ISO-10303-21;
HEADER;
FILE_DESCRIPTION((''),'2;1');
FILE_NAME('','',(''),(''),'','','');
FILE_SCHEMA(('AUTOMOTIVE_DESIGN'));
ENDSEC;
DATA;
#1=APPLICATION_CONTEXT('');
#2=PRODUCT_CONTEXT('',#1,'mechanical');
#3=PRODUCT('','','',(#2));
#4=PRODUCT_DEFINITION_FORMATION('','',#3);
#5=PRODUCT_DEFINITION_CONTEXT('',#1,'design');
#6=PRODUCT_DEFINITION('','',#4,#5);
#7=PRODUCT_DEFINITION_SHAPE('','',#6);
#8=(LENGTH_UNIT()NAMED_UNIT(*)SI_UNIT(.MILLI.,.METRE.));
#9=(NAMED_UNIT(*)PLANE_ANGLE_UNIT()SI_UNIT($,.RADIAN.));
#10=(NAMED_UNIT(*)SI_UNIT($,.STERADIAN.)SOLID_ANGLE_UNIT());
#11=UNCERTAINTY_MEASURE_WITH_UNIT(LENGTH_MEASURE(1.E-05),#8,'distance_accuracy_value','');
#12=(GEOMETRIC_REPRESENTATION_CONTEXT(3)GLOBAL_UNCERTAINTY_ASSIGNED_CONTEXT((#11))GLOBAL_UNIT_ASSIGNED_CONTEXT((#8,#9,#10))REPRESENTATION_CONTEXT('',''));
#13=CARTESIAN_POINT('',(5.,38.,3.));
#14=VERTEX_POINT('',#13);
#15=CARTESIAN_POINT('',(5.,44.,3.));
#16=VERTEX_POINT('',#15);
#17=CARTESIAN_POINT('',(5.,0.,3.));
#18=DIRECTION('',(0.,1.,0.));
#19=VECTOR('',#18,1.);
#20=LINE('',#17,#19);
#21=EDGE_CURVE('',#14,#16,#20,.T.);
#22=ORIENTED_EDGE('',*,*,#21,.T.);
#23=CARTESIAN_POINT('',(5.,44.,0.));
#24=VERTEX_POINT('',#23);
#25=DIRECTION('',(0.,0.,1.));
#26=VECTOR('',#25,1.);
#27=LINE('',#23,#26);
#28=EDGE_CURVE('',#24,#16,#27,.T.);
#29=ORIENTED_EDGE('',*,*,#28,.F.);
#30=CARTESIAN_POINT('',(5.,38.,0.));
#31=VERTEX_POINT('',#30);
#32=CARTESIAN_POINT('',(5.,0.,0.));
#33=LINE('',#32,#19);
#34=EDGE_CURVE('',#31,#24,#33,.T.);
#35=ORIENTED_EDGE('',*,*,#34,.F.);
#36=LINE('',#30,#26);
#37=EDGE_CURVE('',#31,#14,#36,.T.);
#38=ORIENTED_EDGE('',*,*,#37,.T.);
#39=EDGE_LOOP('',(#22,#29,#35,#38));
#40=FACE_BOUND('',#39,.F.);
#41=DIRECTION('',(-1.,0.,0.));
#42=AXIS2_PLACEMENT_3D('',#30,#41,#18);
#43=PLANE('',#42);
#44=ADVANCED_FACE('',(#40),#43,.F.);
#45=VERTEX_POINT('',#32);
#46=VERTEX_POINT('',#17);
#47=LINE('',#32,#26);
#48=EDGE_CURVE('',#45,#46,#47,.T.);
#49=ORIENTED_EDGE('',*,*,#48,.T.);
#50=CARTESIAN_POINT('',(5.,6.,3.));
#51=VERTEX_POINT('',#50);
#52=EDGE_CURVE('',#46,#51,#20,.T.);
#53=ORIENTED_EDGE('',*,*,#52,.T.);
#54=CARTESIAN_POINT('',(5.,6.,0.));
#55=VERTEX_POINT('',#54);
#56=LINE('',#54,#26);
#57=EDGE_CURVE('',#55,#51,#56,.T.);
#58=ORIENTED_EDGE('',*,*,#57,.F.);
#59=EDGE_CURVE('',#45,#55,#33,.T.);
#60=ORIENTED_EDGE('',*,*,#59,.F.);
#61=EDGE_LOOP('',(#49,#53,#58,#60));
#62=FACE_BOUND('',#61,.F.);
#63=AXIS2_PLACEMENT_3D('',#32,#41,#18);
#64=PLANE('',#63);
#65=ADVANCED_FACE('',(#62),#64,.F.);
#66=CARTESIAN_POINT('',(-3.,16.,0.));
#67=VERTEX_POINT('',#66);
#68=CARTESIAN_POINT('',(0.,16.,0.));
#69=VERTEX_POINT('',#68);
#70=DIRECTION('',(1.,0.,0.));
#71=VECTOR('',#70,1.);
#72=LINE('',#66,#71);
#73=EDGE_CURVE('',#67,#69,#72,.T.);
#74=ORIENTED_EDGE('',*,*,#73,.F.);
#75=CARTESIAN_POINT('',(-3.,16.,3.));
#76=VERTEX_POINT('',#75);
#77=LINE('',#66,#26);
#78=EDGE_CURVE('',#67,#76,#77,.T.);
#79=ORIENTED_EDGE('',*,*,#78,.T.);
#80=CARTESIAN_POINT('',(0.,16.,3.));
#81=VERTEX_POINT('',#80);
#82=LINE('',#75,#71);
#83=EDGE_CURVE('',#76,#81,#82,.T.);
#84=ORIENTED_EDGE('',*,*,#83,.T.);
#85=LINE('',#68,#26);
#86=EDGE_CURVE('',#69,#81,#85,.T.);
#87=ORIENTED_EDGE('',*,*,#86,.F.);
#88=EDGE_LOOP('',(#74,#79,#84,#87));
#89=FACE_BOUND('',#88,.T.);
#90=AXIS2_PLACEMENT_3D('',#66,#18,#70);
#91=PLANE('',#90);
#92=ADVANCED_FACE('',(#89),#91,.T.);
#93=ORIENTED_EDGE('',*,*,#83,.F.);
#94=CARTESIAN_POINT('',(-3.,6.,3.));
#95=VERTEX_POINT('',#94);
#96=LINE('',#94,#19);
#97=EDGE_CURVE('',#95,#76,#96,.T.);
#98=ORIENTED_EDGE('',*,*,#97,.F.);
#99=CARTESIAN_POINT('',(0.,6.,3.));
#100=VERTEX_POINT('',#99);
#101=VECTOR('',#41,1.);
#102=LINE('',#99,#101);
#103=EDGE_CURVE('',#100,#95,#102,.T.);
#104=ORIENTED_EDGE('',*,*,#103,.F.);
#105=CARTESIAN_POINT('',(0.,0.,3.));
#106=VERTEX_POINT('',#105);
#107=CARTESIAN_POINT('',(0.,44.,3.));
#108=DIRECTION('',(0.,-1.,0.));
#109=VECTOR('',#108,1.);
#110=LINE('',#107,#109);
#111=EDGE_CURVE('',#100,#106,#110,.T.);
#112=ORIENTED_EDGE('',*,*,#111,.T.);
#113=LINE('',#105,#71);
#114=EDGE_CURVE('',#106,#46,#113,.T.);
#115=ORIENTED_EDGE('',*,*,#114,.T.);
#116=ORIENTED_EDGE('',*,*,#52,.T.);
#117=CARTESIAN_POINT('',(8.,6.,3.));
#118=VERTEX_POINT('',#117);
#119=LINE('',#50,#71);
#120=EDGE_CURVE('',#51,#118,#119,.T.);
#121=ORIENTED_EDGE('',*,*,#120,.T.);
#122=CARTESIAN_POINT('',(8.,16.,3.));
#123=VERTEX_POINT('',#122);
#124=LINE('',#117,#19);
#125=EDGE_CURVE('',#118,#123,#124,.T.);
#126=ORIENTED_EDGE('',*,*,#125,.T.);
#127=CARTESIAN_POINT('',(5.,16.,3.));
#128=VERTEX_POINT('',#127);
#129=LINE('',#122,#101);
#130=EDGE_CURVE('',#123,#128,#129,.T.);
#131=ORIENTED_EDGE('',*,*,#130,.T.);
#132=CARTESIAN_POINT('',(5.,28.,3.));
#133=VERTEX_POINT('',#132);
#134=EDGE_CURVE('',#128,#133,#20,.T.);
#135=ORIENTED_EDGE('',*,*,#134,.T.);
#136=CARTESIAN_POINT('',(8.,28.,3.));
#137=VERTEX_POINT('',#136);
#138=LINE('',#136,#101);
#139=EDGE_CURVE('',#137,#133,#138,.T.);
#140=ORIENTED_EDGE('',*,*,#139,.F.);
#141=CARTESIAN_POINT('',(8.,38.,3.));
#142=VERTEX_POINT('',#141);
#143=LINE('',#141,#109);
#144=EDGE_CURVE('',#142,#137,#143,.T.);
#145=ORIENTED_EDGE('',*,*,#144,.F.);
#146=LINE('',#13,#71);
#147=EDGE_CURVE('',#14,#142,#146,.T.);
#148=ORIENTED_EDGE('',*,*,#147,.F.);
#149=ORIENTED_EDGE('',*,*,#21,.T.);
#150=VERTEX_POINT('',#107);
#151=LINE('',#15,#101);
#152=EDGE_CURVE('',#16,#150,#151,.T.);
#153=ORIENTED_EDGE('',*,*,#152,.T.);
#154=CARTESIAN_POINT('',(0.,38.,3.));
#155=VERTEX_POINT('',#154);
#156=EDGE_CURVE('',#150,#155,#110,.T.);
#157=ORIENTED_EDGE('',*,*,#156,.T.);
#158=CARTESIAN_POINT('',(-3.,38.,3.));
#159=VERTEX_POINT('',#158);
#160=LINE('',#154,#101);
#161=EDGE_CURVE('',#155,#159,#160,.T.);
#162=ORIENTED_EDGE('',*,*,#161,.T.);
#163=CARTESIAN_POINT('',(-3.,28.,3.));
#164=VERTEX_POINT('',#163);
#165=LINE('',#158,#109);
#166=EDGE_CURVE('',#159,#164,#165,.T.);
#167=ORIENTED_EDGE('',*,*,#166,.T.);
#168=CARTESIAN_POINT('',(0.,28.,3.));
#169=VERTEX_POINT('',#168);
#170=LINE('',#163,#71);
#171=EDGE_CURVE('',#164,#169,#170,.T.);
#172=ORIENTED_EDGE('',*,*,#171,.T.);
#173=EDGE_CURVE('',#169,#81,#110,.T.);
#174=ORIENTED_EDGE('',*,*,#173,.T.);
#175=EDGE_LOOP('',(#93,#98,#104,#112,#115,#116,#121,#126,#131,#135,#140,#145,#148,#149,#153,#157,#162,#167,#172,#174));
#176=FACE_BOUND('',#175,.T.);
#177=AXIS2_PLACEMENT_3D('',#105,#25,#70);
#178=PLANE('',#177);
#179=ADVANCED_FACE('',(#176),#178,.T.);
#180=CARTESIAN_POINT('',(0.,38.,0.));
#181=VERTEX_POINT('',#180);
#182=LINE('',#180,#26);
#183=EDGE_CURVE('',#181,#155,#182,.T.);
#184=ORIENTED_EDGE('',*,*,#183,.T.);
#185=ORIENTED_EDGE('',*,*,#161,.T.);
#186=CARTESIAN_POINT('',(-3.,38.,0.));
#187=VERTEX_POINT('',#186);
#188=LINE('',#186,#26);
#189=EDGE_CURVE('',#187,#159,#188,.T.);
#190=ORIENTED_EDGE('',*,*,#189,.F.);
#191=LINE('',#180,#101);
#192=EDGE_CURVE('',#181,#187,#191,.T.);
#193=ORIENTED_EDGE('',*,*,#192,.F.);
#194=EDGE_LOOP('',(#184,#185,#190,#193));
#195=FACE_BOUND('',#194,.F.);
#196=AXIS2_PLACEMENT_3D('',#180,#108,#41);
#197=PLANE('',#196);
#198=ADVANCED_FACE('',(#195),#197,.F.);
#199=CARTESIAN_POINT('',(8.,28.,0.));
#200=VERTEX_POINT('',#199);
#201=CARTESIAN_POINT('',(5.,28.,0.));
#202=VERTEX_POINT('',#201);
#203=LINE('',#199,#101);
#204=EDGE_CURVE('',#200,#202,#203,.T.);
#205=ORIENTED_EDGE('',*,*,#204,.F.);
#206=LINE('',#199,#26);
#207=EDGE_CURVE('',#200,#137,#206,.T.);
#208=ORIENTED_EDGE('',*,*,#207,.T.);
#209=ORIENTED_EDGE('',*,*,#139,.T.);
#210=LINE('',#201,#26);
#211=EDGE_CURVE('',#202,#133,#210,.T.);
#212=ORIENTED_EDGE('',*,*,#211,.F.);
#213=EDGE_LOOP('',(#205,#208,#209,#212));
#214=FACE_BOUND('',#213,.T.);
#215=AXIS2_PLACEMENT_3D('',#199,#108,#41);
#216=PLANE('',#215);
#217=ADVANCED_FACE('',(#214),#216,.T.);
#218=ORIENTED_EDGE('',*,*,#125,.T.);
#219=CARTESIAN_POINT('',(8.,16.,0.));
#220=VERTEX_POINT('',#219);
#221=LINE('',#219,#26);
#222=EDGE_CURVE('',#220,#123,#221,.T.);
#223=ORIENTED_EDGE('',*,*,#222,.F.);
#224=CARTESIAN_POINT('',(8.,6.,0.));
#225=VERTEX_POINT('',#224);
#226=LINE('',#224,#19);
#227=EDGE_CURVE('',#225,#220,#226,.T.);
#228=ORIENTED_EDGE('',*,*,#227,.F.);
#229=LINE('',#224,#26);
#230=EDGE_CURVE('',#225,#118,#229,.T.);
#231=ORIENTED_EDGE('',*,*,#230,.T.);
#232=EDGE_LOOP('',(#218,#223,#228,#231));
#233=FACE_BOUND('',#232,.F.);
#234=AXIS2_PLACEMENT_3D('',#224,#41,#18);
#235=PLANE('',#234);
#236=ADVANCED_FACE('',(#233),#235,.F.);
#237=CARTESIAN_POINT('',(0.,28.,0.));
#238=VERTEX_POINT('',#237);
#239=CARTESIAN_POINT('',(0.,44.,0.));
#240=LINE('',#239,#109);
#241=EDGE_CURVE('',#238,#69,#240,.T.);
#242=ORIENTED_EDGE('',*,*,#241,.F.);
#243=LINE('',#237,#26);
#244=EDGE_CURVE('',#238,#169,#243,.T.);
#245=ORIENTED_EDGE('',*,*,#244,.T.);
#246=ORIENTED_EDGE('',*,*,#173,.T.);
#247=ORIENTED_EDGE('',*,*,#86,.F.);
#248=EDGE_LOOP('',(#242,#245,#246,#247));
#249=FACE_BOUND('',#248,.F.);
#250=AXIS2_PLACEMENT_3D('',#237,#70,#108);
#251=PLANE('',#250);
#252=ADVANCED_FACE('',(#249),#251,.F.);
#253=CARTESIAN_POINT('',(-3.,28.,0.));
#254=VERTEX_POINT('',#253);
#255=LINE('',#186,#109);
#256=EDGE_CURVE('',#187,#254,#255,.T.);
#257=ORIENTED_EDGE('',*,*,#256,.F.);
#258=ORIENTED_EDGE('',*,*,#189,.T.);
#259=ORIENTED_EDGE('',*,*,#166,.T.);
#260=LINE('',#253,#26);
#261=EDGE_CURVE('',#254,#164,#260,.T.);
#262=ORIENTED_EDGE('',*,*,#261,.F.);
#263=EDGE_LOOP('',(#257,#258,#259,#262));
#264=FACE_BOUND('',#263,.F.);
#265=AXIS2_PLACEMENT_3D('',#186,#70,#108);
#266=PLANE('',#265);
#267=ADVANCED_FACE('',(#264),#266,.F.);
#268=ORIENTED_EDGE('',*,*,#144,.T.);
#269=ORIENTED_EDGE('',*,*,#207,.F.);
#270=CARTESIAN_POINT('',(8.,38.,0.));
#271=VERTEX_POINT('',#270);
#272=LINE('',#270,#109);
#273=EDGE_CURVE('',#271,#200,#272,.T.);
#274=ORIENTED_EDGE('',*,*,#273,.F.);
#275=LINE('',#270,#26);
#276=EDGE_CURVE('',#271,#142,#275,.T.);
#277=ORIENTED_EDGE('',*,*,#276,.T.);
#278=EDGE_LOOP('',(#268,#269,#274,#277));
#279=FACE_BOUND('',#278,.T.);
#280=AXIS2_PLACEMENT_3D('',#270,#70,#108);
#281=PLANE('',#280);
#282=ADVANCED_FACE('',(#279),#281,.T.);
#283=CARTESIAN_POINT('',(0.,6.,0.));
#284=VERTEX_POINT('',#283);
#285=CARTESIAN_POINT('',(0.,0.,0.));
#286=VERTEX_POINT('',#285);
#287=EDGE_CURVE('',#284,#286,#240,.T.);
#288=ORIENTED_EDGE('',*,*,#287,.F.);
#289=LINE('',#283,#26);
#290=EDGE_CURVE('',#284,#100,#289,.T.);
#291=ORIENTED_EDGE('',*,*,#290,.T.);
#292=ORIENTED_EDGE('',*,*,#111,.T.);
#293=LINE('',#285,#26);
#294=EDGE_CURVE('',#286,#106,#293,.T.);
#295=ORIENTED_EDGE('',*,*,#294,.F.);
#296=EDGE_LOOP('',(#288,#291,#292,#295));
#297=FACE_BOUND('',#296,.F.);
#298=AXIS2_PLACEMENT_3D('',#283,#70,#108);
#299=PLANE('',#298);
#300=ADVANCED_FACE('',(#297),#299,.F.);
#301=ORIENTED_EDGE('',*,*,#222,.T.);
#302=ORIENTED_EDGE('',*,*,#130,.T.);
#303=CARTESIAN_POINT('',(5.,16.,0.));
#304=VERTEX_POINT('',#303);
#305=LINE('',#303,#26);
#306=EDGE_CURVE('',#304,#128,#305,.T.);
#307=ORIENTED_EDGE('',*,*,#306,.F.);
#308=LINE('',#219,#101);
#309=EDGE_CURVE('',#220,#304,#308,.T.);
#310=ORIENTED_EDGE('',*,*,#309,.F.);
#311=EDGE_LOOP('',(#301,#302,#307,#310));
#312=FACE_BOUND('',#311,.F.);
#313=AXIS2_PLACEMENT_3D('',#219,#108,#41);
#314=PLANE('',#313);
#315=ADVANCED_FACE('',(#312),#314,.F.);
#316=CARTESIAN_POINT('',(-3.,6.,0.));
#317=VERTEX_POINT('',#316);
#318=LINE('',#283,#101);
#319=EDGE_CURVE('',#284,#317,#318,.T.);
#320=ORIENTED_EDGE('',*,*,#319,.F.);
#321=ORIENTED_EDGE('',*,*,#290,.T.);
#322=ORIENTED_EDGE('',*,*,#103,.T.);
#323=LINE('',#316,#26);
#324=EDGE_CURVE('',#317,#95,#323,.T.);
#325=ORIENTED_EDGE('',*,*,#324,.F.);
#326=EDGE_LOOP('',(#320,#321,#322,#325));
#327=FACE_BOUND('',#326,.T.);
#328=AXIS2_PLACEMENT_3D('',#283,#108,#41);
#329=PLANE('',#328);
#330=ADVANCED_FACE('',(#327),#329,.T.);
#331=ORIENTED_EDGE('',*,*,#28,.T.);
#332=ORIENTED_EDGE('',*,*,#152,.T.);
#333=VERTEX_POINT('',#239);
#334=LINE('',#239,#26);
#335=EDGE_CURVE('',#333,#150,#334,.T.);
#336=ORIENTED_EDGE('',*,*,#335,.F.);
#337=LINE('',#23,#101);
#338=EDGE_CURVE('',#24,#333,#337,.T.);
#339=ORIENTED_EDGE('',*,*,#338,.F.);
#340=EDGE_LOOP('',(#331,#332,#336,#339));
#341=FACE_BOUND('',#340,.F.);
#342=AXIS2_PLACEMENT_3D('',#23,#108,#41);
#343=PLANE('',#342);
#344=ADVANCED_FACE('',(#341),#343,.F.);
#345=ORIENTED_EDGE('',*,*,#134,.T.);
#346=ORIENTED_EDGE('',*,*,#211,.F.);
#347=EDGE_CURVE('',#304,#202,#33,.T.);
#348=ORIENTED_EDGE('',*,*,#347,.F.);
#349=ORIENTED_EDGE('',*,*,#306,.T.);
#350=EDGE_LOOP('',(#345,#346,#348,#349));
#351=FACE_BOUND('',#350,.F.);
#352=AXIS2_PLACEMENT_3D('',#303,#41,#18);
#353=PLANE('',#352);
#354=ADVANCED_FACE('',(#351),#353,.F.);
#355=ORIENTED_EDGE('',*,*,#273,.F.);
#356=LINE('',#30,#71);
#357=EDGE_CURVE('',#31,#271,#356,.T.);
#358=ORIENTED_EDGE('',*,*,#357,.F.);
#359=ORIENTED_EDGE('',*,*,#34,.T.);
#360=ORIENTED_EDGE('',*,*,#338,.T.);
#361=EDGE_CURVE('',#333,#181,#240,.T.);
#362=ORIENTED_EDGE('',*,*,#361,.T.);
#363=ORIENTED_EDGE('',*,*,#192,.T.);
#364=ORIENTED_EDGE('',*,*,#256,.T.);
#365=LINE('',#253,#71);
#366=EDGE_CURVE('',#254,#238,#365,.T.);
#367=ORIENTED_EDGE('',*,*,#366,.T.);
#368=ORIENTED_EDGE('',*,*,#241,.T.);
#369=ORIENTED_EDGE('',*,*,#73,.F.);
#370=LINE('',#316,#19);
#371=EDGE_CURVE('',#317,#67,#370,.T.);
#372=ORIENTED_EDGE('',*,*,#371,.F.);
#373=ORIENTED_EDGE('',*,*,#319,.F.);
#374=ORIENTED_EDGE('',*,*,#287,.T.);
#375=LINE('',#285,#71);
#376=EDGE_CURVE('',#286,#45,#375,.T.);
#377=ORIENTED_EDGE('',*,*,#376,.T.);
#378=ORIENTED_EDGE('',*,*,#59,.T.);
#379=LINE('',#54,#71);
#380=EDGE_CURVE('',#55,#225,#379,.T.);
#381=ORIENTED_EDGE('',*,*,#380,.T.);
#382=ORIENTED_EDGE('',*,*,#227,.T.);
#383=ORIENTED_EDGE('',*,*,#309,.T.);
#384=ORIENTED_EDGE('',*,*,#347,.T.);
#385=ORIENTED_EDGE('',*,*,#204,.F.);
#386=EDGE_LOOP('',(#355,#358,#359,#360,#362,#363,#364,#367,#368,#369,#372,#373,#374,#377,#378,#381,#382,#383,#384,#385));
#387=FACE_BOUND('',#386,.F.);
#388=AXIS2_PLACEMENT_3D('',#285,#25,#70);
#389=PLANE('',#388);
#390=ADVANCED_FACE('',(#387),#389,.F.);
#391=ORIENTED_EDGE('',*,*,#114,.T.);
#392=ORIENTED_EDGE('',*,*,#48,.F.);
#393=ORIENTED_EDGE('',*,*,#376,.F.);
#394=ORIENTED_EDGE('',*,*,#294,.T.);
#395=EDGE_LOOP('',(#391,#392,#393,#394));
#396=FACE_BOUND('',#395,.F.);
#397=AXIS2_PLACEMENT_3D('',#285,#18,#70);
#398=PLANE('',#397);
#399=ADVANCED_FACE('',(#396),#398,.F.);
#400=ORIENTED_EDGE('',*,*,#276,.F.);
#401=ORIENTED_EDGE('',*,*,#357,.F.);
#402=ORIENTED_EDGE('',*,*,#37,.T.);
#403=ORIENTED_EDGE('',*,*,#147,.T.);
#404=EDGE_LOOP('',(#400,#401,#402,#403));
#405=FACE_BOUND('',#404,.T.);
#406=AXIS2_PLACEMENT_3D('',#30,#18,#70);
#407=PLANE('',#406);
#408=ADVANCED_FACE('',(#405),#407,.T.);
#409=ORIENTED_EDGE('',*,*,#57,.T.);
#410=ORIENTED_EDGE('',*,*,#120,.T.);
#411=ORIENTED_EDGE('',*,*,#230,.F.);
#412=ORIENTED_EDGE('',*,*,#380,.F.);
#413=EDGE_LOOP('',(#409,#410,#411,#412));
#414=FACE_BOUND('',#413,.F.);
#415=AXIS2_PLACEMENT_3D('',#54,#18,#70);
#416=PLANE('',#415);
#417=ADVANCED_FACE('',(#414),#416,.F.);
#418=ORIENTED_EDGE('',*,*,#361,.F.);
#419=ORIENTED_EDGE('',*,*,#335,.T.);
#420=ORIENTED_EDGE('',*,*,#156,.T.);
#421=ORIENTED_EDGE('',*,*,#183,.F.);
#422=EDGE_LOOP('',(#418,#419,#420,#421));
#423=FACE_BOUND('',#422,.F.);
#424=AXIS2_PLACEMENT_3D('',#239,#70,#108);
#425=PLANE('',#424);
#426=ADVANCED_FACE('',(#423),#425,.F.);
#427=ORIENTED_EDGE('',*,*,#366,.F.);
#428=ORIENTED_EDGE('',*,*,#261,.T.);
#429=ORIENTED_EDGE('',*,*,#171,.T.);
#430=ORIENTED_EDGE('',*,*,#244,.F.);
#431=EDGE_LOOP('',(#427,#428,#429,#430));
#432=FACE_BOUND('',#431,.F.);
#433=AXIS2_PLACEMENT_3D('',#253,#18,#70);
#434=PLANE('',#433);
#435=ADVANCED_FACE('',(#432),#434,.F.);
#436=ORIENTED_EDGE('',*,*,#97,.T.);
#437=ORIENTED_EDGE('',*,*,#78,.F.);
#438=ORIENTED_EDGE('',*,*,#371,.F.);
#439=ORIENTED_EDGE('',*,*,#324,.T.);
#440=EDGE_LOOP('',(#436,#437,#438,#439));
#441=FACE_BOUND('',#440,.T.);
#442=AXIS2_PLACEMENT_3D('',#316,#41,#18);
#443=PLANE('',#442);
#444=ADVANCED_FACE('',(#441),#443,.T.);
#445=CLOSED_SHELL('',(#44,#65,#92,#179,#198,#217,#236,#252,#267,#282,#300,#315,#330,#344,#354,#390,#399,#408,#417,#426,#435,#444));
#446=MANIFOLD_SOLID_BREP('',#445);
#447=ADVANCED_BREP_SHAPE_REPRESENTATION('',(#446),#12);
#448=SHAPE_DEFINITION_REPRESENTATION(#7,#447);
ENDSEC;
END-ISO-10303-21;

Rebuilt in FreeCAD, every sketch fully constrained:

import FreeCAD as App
import Part
import Sketcher


def add_polygon(sketch, points):
    """Adds a closed chain of lines whose ends are joined by coincident constraints."""
    first, n = sketch.GeometryCount, len(points)
    for a, b in zip(points, points[1:] + points[:1]):
        sketch.addGeometry(Part.LineSegment(App.Vector(*a, 0), App.Vector(*b, 0)), False)
    for i in range(n):
        sketch.addConstraint(Sketcher.Constraint("Coincident", first + i, 2, first + (i + 1) % n, 1))

doc = App.newDocument("Part")
params = doc.addObject("Spreadsheet::Sheet", "Params")
for row, (alias, value) in enumerate([
    ("sketch1_width", "5 mm"),
    ("sketch1_width2", "3 mm"),
    ("sketch1_height", "6 mm"),
    ("sketch1_height2", "10 mm"),
    ("pad1_length", "3 mm"),
], start=1):
    params.set(f"A{row}", alias)
    params.set(f"B{row}", "=" + value)
    params.setAlias(f"B{row}", alias)

body = doc.addObject("PartDesign::Body", "Body")

sketch1 = doc.addObject("Sketcher::SketchObject", "Sketch")
body.addObject(sketch1)
sketch1.AttachmentSupport = (doc.XY_Plane, [""])
sketch1.MapMode = "FlatFace"
add_polygon(sketch1, [(0, 6), (0, 0), (5, 0), (5, 6), (8, 6), (8, 16), (5, 16), (5, 28), (8, 28), (8, 38), (5, 38), (5, 44), (0, 44), (0, 38), (-3, 38), (-3, 28), (0, 28), (0, 16), (-3, 16), (-3, 6)])
sketch1.addConstraint(Sketcher.Constraint("Vertical", 0))
sketch1.addConstraint(Sketcher.Constraint("Horizontal", 1))
sketch1.addConstraint(Sketcher.Constraint("Vertical", 2))
sketch1.addConstraint(Sketcher.Constraint("Horizontal", 3))
sketch1.addConstraint(Sketcher.Constraint("Vertical", 4))
sketch1.addConstraint(Sketcher.Constraint("Horizontal", 5))
sketch1.addConstraint(Sketcher.Constraint("Vertical", 6))
sketch1.addConstraint(Sketcher.Constraint("Horizontal", 7))
sketch1.addConstraint(Sketcher.Constraint("Vertical", 8))
sketch1.addConstraint(Sketcher.Constraint("Horizontal", 9))
sketch1.addConstraint(Sketcher.Constraint("Vertical", 10))
sketch1.addConstraint(Sketcher.Constraint("Horizontal", 11))
sketch1.addConstraint(Sketcher.Constraint("Vertical", 12))
sketch1.addConstraint(Sketcher.Constraint("Horizontal", 13))
sketch1.addConstraint(Sketcher.Constraint("Vertical", 14))
sketch1.addConstraint(Sketcher.Constraint("Horizontal", 15))
sketch1.addConstraint(Sketcher.Constraint("Vertical", 16))
sketch1.addConstraint(Sketcher.Constraint("Horizontal", 17))
sketch1.addConstraint(Sketcher.Constraint("Vertical", 18))
sketch1.addConstraint(Sketcher.Constraint("Horizontal", 19))
sketch1.addConstraint(Sketcher.Constraint("Coincident", 0, 2, -1, 1))
sketch1.addConstraint(Sketcher.Constraint("PointOnObject", 11, 2, -2))
sketch1.addConstraint(Sketcher.Constraint("PointOnObject", 15, 2, -2))
sketch1.addConstraint(Sketcher.Constraint("Horizontal", 9, 2, 12, 2))
sketch1.addConstraint(Sketcher.Constraint("Horizontal", 7, 2, 14, 2))
sketch1.addConstraint(Sketcher.Constraint("Horizontal", 5, 2, 16, 2))
sketch1.addConstraint(Sketcher.Constraint("Horizontal", 3, 2, 18, 2))
sketch1.addConstraint(Sketcher.Constraint("Vertical", 2, 2, 5, 2))
sketch1.addConstraint(Sketcher.Constraint("Vertical", 4, 2, 7, 2))
sketch1.addConstraint(Sketcher.Constraint("Vertical", 6, 2, 9, 2))
sketch1.addConstraint(Sketcher.Constraint("Vertical", 14, 2, 17, 2))
sketch1.addConstraint(Sketcher.Constraint("Equal", 9, 13))
sketch1.addConstraint(Sketcher.Constraint("Equal", 4, 8))
sketch1.addConstraint(Sketcher.Constraint("Equal", 2, 10))
sketch1.addConstraint(Sketcher.Constraint("DistanceX", 1, 1, 1, 2, 5.0))
sketch1.addConstraint(Sketcher.Constraint("DistanceX", 3, 1, 3, 2, 3.0))
sketch1.addConstraint(Sketcher.Constraint("DistanceY", 0, 2, 0, 1, 6.0))
sketch1.addConstraint(Sketcher.Constraint("DistanceY", 4, 1, 4, 2, 10.0))
sketch1.addConstraint(Sketcher.Constraint("DistanceY", -1, 1, 10, 2, 44.0))
sketch1.setExpression("Constraints[54]", "Params.sketch1_width")
sketch1.setExpression("Constraints[55]", "Params.sketch1_width2")
sketch1.setExpression("Constraints[56]", "Params.sketch1_height")
sketch1.setExpression("Constraints[57]", "Params.sketch1_height2")
pad1 = doc.addObject("PartDesign::Pad", "Pad")
body.addObject(pad1)
pad1.Profile = sketch1
pad1.setExpression("Length", "Params.pad1_length")

doc.recompute()
